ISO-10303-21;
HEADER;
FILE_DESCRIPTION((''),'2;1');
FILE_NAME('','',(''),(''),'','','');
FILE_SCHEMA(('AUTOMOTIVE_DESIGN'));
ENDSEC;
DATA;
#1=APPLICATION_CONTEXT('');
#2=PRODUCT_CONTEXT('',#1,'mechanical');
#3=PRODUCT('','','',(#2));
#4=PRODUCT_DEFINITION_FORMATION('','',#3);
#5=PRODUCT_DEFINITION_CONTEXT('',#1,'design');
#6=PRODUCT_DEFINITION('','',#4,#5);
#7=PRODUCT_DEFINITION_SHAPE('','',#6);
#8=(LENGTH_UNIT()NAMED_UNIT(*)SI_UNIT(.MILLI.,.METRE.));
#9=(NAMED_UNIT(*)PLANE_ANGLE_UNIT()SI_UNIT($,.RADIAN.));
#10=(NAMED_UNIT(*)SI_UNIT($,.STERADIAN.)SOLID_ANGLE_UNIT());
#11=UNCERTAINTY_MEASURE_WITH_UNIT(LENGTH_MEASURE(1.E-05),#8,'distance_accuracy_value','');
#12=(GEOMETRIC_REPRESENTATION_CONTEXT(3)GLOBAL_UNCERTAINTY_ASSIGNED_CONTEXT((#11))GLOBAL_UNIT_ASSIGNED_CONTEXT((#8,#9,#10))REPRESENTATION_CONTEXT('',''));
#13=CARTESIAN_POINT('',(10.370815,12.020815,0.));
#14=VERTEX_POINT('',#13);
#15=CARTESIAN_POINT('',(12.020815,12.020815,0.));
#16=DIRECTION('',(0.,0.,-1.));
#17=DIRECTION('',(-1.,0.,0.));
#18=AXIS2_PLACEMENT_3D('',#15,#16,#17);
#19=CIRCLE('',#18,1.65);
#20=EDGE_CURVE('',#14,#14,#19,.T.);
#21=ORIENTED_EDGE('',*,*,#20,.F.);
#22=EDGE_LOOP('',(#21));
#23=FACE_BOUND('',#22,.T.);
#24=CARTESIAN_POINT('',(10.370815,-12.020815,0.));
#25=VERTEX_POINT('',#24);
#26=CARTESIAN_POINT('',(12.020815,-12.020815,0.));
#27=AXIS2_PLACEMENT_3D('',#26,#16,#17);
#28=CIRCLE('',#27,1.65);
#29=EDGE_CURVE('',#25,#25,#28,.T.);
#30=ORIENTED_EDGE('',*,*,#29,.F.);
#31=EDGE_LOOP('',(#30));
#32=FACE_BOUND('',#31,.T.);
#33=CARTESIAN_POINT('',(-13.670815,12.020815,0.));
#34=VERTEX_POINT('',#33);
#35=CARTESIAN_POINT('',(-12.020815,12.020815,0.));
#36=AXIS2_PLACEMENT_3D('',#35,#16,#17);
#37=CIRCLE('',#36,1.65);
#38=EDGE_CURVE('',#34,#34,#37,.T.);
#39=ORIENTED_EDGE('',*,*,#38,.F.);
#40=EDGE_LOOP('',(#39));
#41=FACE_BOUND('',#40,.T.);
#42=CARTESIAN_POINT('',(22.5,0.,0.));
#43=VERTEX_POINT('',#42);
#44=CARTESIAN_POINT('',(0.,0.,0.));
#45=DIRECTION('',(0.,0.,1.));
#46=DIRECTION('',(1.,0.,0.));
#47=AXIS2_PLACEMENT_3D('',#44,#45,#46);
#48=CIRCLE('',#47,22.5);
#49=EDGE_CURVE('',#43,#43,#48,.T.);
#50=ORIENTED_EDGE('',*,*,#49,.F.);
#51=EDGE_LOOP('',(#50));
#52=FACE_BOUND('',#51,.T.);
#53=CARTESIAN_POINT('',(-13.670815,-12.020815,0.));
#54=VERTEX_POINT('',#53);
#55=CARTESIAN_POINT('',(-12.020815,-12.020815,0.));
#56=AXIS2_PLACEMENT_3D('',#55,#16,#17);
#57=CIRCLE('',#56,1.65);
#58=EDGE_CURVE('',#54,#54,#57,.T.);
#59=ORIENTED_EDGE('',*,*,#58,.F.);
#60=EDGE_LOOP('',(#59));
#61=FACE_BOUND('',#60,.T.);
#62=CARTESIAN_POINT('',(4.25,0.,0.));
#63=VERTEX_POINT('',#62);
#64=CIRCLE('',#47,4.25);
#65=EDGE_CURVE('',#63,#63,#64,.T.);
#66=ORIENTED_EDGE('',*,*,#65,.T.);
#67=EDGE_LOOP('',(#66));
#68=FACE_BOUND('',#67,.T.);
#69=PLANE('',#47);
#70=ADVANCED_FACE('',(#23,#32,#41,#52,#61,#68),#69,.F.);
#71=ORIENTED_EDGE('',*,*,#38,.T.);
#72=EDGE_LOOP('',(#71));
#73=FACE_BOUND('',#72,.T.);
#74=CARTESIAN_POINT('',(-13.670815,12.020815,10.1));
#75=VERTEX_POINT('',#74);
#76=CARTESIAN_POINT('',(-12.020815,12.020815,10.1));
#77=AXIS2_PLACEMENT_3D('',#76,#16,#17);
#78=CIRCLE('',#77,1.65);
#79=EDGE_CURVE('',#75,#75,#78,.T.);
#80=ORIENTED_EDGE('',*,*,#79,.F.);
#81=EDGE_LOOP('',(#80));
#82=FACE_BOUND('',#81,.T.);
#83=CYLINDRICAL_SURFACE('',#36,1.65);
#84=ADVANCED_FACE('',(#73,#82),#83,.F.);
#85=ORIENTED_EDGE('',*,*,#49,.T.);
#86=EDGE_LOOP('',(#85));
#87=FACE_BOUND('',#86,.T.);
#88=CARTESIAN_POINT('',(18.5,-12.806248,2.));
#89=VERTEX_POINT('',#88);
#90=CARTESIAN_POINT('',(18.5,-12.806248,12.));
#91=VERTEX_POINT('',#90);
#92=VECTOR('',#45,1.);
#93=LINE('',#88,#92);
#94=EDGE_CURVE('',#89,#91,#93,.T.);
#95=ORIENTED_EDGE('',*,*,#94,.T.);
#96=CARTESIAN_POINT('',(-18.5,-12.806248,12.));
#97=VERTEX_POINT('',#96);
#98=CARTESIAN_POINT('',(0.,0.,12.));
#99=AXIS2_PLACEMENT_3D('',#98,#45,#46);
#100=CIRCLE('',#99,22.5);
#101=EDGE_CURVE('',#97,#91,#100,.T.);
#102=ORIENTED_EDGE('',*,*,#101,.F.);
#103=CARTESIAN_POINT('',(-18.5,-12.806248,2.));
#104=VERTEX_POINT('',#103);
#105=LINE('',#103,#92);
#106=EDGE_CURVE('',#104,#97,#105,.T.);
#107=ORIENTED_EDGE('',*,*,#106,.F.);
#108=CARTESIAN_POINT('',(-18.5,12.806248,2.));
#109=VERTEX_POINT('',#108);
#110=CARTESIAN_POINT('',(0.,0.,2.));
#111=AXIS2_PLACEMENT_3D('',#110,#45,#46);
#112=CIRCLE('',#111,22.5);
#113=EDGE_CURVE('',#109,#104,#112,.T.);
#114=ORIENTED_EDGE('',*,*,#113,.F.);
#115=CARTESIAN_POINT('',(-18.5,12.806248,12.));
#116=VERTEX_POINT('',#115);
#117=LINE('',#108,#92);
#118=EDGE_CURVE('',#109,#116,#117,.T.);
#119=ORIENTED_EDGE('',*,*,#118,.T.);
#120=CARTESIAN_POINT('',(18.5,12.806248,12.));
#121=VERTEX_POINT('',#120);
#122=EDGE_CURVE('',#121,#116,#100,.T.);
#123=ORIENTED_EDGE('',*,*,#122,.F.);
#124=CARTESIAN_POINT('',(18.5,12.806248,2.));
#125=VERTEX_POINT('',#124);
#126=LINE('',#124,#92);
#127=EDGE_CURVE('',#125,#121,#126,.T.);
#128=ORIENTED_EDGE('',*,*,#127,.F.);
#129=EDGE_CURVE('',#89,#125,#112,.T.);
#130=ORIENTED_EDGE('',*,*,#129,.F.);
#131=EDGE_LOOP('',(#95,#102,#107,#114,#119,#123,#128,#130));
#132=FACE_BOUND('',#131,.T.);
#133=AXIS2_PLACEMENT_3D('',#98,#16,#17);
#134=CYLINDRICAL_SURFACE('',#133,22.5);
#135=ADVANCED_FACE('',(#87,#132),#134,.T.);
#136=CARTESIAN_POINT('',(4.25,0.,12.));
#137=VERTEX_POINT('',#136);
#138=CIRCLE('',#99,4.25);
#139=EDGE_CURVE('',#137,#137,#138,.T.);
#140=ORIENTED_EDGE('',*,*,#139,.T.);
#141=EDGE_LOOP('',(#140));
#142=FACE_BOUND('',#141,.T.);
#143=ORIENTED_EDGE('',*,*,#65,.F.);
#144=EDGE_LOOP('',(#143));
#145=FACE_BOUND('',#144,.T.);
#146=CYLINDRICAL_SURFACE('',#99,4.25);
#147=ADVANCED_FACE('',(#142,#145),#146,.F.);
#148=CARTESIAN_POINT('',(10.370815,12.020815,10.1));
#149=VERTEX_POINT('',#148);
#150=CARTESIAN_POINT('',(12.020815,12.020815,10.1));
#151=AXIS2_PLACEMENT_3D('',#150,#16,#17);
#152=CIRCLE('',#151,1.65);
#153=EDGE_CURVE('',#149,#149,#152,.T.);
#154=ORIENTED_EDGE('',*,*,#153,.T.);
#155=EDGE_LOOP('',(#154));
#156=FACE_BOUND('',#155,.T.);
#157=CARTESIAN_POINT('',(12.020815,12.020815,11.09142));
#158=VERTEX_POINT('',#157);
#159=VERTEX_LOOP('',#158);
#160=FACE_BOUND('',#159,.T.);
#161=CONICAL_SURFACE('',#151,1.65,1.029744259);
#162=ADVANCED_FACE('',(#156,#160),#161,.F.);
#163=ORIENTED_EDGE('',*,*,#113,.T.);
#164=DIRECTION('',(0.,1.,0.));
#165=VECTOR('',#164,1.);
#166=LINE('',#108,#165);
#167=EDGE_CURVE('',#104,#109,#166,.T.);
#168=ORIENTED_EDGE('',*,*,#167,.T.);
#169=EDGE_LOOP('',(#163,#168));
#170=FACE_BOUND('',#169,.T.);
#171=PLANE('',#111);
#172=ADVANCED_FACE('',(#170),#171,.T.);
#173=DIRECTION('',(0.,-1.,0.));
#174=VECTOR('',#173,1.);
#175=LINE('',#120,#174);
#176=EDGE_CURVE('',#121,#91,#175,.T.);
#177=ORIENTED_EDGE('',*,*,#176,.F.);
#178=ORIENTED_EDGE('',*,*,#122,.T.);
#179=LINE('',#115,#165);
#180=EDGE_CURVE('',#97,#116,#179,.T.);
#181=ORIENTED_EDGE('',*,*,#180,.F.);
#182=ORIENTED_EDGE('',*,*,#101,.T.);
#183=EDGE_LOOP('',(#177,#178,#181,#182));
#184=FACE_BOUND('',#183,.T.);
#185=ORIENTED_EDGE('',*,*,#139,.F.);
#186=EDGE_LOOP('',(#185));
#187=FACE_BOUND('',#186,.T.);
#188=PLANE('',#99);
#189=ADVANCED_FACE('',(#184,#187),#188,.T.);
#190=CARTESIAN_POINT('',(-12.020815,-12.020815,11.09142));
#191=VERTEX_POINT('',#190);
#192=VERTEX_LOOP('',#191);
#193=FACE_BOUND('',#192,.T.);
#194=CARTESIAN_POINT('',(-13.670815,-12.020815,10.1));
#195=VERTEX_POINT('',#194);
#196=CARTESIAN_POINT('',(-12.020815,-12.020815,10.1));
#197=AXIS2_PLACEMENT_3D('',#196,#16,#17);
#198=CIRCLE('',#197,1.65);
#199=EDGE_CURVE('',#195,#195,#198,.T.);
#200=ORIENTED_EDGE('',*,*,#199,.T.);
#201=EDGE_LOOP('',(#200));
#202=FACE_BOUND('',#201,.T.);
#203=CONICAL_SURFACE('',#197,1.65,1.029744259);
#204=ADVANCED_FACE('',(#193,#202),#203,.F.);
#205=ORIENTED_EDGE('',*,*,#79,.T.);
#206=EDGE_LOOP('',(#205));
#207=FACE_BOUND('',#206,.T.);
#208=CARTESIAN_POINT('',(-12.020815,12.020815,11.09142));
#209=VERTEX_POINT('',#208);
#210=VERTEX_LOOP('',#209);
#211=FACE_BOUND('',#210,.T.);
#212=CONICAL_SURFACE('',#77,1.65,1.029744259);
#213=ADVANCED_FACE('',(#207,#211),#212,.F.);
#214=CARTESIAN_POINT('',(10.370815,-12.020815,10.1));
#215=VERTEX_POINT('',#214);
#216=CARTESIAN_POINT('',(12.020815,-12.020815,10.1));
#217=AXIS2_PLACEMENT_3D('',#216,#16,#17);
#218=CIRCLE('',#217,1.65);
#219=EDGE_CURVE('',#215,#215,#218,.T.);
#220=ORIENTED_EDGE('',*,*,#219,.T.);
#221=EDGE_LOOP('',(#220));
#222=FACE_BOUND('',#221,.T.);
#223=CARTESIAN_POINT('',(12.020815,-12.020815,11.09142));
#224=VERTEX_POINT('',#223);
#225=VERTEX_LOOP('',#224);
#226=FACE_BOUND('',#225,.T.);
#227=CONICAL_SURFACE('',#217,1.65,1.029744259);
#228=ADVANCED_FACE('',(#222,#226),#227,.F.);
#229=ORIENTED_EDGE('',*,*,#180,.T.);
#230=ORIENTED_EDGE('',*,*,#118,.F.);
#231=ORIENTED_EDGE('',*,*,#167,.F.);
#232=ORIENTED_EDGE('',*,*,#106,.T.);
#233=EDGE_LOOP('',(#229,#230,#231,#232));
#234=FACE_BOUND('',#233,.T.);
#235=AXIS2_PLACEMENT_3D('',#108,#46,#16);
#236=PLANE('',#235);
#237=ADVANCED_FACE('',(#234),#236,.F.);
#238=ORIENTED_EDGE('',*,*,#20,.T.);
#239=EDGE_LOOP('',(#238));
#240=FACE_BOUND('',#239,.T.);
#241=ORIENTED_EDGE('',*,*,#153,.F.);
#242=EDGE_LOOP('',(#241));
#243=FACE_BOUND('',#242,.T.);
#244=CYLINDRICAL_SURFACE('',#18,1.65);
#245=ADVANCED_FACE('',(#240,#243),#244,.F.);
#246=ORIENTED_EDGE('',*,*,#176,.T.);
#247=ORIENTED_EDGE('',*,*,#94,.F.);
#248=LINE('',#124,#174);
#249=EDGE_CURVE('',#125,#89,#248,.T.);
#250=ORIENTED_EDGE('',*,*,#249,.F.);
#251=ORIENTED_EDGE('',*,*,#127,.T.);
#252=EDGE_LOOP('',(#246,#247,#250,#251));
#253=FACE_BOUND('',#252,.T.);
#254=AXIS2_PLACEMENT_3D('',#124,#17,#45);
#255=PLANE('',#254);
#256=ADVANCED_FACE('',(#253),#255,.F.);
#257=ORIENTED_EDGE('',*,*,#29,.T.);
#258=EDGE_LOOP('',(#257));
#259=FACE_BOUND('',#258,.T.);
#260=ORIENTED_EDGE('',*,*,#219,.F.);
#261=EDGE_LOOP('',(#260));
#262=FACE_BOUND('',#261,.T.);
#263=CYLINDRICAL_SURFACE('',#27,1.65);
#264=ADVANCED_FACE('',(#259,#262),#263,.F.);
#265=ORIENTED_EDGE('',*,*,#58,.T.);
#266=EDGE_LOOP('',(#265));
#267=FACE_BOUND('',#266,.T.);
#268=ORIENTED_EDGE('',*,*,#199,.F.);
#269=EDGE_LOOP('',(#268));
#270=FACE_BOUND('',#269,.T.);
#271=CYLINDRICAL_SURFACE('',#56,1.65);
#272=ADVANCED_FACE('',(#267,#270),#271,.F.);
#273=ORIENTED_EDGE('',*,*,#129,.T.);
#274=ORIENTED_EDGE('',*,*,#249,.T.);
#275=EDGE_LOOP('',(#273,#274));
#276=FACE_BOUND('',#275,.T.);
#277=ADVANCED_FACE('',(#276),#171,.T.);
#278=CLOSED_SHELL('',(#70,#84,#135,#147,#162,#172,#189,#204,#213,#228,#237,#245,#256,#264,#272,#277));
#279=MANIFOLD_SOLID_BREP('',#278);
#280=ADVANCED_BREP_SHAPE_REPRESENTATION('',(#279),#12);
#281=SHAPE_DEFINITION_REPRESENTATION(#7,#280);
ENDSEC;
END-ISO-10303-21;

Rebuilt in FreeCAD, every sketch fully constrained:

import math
import FreeCAD as App
import Part
import Sketcher

V = App.Vector
Q = App.Units.Quantity


def add_polygon(sketch, points):
    """Adds a closed chain of lines whose ends are joined by coincident constraints."""
    first, n = sketch.GeometryCount, len(points)
    for a, b in zip(points, points[1:] + points[:1]):
        sketch.addGeometry(Part.LineSegment(App.Vector(*a, 0), App.Vector(*b, 0)), False)
    for i in range(n):
        sketch.addConstraint(Sketcher.Constraint("Coincident", first + i, 2, first + (i + 1) % n, 1))

doc = App.newDocument("Part")
params = doc.addObject("Spreadsheet::Sheet", "Params")
for row, (alias, value) in enumerate([
    ("sketch1_diameter", "45 mm"),
    ("pad1_length", "12 mm"),
    ("sketch2_radius", "22.5 mm"),
    ("pocket1_length", "10 mm"),
    ("sketch3_diameter", "8.5 mm"),
    ("hole_diameter", "8.5 mm"),
    ("hole_depth", "24.5 mm"),
    ("sketch4_height", "10.1 mm"),
    ("sketch4_width", "1.65 mm"),
    ("groove_angle", "360 deg"),
], start=1):
    params.set(f"A{row}", alias)
    params.set(f"B{row}", "=" + value)
    params.setAlias(f"B{row}", alias)

body = doc.addObject("PartDesign::Body", "Body")

sketch1 = body.newObject("Sketcher::SketchObject", "Sketch")
sketch1.AttachmentSupport = (doc.getObject("XY_Plane"), [""])
sketch1.MapMode = "FlatFace"
sketch1.addGeometry(Part.Circle(V(0, 0, 0), V(0, 0, 1), 22.5), False)
sketch1.addConstraint([
    Sketcher.Constraint("Coincident", 0, 3, -1, 1),
    Sketcher.Constraint("Diameter", 0, Q("45 mm")),
])
sketch1.setExpression("Constraints[1]", "Params.sketch1_diameter")
pad1 = body.newObject("PartDesign::Pad", "Pad")
pad1.Profile = sketch1
pad1.setExpression("Length", "Params.pad1_length")

sketch2 = body.newObject("Sketcher::SketchObject", "Sketch001")
sketch2.AttachmentSupport = (doc.getObject("XY_Plane"), [""])
sketch2.MapMode = "FlatFace"
sketch2.AttachmentOffset = App.Placement(V(0, 0, 12), App.Rotation())
sketch2.addGeometry([
    Part.LineSegment(V(-18.5, -12.806248, 0), V(-18.5, 12.806248, 0)),
    Part.ArcOfCircle(Part.Circle(V(0, 0, 0), V(0, 0, 1), 22.5), math.radians(145.307869), math.radians(214.692131)),
    Part.LineSegment(V(18.5, 12.806248, 0), V(18.5, -12.806248, 0)),
    Part.ArcOfCircle(Part.Circle(V(0, 0, 0), V(0, 0, 1), 22.5), math.radians(-34.692131), math.radians(34.692131)),
], False)
sketch2.addConstraint([
    Sketcher.Constraint("Coincident", 0, 1, 1, 2),
    Sketcher.Constraint("Coincident", 1, 1, 0, 2),
    Sketcher.Constraint("Coincident", 2, 1, 3, 2),
    Sketcher.Constraint("Coincident", 3, 1, 2, 2),
    Sketcher.Constraint("Vertical", 0),
    Sketcher.Constraint("Vertical", 2),
    Sketcher.Constraint("Coincident", 1, 3, -1, 1),
    Sketcher.Constraint("Coincident", 3, 3, -1, 1),
    Sketcher.Constraint("Equal", 1, 3),
    Sketcher.Constraint("Horizontal", 1, 1, 2, 1),
    Sketcher.Constraint("Radius", 1, Q("22.5 mm")),
    Sketcher.Constraint("DistanceX", 1, 1, 2, 1, Q("37 mm")),
])
sketch2.setExpression("Constraints[10]", "Params.sketch2_radius")
pocket1 = body.newObject("PartDesign::Pocket", "Pocket")
pocket1.Profile = sketch2
pocket1.setExpression("Length", "Params.pocket1_length")

sketch3 = body.newObject("Sketcher::SketchObject", "Sketch002")
sketch3.AttachmentSupport = (doc.getObject("XY_Plane"), [""])
sketch3.MapMode = "FlatFace"
sketch3.AttachmentOffset = App.Placement(V(0, 0, 12), App.Rotation())
sketch3.addGeometry(Part.Circle(V(0, 0, 0), V(0, 0, 1), 4.25), False)
sketch3.addConstraint([
    Sketcher.Constraint("Coincident", 0, 3, -1, 1),
    Sketcher.Constraint("Diameter", 0, Q("8.5 mm")),
])
sketch3.setExpression("Constraints[1]", "Params.sketch3_diameter")
doc.recompute()
hole = body.newObject("PartDesign::Hole", "Hole")
hole.Profile = sketch3
hole.ThreadType = "None"
hole.setExpression("Diameter", "Params.hole_diameter")
hole.DepthType = "Dimension"
hole.setExpression("Depth", "Params.hole_depth")
hole.DrillPoint = "Angled"
hole.DrillPointAngle = 118

sketch4 = body.newObject("Sketcher::SketchObject", "Sketch003")
sketch4.AttachmentSupport = (doc.getObject("YZ_Plane"), [""])
sketch4.MapMode = "FlatFace"
sketch4.AttachmentOffset = App.Placement(V(0, 0, -12.020815), App.Rotation())
add_polygon(sketch4, [(12.020815, 11.09142), (12.020815, 0), (13.670815, 0), (13.670815, 10.1)])
sketch4.addGeometry(Part.LineSegment(V(12.020815, 0, 0), V(12.020815, 11.09142, 0)), True)
sketch4.addConstraint([
    Sketcher.Constraint("Vertical", 0),
    Sketcher.Constraint("Horizontal", 1),
    Sketcher.Constraint("Vertical", 2),
    Sketcher.Constraint("Vertical", 4),
    Sketcher.Constraint("Coincident", 4, 1, 0, 2),
    Sketcher.Constraint("PointOnObject", 0, 2, -1),
    Sketcher.Constraint("Equal", 0, 4),
    Sketcher.Constraint("Angle", 3, Q("149 deg")),
    Sketcher.Constraint("DistanceY", 2, 1, 2, 2, Q("10.1 mm")),
    Sketcher.Constraint("DistanceX", 1, 1, 1, 2, Q("1.65 mm")),
    Sketcher.Constraint("DistanceX", -1, 1, 0, 2, Q("12.020815 mm")),
])
sketch4.setExpression("Constraints[12]", "Params.sketch4_height")
sketch4.setExpression("Constraints[13]", "Params.sketch4_width")
groove = body.newObject("PartDesign::Groove", "Groove")
groove.Profile = sketch4
groove.ReferenceAxis = (sketch4, ["Axis0"])
groove.setExpression("Angle", "Params.groove_angle")
doc.recompute()

polarpattern = body.newObject("PartDesign::PolarPattern", "PolarPattern")
polarpattern.Originals = [groove]
polarpattern.Axis = (doc.getObject("Z_Axis"), [""])
polarpattern.Angle = 360
polarpattern.Occurrences = 4
body.Tip = polarpattern

doc.recompute()
